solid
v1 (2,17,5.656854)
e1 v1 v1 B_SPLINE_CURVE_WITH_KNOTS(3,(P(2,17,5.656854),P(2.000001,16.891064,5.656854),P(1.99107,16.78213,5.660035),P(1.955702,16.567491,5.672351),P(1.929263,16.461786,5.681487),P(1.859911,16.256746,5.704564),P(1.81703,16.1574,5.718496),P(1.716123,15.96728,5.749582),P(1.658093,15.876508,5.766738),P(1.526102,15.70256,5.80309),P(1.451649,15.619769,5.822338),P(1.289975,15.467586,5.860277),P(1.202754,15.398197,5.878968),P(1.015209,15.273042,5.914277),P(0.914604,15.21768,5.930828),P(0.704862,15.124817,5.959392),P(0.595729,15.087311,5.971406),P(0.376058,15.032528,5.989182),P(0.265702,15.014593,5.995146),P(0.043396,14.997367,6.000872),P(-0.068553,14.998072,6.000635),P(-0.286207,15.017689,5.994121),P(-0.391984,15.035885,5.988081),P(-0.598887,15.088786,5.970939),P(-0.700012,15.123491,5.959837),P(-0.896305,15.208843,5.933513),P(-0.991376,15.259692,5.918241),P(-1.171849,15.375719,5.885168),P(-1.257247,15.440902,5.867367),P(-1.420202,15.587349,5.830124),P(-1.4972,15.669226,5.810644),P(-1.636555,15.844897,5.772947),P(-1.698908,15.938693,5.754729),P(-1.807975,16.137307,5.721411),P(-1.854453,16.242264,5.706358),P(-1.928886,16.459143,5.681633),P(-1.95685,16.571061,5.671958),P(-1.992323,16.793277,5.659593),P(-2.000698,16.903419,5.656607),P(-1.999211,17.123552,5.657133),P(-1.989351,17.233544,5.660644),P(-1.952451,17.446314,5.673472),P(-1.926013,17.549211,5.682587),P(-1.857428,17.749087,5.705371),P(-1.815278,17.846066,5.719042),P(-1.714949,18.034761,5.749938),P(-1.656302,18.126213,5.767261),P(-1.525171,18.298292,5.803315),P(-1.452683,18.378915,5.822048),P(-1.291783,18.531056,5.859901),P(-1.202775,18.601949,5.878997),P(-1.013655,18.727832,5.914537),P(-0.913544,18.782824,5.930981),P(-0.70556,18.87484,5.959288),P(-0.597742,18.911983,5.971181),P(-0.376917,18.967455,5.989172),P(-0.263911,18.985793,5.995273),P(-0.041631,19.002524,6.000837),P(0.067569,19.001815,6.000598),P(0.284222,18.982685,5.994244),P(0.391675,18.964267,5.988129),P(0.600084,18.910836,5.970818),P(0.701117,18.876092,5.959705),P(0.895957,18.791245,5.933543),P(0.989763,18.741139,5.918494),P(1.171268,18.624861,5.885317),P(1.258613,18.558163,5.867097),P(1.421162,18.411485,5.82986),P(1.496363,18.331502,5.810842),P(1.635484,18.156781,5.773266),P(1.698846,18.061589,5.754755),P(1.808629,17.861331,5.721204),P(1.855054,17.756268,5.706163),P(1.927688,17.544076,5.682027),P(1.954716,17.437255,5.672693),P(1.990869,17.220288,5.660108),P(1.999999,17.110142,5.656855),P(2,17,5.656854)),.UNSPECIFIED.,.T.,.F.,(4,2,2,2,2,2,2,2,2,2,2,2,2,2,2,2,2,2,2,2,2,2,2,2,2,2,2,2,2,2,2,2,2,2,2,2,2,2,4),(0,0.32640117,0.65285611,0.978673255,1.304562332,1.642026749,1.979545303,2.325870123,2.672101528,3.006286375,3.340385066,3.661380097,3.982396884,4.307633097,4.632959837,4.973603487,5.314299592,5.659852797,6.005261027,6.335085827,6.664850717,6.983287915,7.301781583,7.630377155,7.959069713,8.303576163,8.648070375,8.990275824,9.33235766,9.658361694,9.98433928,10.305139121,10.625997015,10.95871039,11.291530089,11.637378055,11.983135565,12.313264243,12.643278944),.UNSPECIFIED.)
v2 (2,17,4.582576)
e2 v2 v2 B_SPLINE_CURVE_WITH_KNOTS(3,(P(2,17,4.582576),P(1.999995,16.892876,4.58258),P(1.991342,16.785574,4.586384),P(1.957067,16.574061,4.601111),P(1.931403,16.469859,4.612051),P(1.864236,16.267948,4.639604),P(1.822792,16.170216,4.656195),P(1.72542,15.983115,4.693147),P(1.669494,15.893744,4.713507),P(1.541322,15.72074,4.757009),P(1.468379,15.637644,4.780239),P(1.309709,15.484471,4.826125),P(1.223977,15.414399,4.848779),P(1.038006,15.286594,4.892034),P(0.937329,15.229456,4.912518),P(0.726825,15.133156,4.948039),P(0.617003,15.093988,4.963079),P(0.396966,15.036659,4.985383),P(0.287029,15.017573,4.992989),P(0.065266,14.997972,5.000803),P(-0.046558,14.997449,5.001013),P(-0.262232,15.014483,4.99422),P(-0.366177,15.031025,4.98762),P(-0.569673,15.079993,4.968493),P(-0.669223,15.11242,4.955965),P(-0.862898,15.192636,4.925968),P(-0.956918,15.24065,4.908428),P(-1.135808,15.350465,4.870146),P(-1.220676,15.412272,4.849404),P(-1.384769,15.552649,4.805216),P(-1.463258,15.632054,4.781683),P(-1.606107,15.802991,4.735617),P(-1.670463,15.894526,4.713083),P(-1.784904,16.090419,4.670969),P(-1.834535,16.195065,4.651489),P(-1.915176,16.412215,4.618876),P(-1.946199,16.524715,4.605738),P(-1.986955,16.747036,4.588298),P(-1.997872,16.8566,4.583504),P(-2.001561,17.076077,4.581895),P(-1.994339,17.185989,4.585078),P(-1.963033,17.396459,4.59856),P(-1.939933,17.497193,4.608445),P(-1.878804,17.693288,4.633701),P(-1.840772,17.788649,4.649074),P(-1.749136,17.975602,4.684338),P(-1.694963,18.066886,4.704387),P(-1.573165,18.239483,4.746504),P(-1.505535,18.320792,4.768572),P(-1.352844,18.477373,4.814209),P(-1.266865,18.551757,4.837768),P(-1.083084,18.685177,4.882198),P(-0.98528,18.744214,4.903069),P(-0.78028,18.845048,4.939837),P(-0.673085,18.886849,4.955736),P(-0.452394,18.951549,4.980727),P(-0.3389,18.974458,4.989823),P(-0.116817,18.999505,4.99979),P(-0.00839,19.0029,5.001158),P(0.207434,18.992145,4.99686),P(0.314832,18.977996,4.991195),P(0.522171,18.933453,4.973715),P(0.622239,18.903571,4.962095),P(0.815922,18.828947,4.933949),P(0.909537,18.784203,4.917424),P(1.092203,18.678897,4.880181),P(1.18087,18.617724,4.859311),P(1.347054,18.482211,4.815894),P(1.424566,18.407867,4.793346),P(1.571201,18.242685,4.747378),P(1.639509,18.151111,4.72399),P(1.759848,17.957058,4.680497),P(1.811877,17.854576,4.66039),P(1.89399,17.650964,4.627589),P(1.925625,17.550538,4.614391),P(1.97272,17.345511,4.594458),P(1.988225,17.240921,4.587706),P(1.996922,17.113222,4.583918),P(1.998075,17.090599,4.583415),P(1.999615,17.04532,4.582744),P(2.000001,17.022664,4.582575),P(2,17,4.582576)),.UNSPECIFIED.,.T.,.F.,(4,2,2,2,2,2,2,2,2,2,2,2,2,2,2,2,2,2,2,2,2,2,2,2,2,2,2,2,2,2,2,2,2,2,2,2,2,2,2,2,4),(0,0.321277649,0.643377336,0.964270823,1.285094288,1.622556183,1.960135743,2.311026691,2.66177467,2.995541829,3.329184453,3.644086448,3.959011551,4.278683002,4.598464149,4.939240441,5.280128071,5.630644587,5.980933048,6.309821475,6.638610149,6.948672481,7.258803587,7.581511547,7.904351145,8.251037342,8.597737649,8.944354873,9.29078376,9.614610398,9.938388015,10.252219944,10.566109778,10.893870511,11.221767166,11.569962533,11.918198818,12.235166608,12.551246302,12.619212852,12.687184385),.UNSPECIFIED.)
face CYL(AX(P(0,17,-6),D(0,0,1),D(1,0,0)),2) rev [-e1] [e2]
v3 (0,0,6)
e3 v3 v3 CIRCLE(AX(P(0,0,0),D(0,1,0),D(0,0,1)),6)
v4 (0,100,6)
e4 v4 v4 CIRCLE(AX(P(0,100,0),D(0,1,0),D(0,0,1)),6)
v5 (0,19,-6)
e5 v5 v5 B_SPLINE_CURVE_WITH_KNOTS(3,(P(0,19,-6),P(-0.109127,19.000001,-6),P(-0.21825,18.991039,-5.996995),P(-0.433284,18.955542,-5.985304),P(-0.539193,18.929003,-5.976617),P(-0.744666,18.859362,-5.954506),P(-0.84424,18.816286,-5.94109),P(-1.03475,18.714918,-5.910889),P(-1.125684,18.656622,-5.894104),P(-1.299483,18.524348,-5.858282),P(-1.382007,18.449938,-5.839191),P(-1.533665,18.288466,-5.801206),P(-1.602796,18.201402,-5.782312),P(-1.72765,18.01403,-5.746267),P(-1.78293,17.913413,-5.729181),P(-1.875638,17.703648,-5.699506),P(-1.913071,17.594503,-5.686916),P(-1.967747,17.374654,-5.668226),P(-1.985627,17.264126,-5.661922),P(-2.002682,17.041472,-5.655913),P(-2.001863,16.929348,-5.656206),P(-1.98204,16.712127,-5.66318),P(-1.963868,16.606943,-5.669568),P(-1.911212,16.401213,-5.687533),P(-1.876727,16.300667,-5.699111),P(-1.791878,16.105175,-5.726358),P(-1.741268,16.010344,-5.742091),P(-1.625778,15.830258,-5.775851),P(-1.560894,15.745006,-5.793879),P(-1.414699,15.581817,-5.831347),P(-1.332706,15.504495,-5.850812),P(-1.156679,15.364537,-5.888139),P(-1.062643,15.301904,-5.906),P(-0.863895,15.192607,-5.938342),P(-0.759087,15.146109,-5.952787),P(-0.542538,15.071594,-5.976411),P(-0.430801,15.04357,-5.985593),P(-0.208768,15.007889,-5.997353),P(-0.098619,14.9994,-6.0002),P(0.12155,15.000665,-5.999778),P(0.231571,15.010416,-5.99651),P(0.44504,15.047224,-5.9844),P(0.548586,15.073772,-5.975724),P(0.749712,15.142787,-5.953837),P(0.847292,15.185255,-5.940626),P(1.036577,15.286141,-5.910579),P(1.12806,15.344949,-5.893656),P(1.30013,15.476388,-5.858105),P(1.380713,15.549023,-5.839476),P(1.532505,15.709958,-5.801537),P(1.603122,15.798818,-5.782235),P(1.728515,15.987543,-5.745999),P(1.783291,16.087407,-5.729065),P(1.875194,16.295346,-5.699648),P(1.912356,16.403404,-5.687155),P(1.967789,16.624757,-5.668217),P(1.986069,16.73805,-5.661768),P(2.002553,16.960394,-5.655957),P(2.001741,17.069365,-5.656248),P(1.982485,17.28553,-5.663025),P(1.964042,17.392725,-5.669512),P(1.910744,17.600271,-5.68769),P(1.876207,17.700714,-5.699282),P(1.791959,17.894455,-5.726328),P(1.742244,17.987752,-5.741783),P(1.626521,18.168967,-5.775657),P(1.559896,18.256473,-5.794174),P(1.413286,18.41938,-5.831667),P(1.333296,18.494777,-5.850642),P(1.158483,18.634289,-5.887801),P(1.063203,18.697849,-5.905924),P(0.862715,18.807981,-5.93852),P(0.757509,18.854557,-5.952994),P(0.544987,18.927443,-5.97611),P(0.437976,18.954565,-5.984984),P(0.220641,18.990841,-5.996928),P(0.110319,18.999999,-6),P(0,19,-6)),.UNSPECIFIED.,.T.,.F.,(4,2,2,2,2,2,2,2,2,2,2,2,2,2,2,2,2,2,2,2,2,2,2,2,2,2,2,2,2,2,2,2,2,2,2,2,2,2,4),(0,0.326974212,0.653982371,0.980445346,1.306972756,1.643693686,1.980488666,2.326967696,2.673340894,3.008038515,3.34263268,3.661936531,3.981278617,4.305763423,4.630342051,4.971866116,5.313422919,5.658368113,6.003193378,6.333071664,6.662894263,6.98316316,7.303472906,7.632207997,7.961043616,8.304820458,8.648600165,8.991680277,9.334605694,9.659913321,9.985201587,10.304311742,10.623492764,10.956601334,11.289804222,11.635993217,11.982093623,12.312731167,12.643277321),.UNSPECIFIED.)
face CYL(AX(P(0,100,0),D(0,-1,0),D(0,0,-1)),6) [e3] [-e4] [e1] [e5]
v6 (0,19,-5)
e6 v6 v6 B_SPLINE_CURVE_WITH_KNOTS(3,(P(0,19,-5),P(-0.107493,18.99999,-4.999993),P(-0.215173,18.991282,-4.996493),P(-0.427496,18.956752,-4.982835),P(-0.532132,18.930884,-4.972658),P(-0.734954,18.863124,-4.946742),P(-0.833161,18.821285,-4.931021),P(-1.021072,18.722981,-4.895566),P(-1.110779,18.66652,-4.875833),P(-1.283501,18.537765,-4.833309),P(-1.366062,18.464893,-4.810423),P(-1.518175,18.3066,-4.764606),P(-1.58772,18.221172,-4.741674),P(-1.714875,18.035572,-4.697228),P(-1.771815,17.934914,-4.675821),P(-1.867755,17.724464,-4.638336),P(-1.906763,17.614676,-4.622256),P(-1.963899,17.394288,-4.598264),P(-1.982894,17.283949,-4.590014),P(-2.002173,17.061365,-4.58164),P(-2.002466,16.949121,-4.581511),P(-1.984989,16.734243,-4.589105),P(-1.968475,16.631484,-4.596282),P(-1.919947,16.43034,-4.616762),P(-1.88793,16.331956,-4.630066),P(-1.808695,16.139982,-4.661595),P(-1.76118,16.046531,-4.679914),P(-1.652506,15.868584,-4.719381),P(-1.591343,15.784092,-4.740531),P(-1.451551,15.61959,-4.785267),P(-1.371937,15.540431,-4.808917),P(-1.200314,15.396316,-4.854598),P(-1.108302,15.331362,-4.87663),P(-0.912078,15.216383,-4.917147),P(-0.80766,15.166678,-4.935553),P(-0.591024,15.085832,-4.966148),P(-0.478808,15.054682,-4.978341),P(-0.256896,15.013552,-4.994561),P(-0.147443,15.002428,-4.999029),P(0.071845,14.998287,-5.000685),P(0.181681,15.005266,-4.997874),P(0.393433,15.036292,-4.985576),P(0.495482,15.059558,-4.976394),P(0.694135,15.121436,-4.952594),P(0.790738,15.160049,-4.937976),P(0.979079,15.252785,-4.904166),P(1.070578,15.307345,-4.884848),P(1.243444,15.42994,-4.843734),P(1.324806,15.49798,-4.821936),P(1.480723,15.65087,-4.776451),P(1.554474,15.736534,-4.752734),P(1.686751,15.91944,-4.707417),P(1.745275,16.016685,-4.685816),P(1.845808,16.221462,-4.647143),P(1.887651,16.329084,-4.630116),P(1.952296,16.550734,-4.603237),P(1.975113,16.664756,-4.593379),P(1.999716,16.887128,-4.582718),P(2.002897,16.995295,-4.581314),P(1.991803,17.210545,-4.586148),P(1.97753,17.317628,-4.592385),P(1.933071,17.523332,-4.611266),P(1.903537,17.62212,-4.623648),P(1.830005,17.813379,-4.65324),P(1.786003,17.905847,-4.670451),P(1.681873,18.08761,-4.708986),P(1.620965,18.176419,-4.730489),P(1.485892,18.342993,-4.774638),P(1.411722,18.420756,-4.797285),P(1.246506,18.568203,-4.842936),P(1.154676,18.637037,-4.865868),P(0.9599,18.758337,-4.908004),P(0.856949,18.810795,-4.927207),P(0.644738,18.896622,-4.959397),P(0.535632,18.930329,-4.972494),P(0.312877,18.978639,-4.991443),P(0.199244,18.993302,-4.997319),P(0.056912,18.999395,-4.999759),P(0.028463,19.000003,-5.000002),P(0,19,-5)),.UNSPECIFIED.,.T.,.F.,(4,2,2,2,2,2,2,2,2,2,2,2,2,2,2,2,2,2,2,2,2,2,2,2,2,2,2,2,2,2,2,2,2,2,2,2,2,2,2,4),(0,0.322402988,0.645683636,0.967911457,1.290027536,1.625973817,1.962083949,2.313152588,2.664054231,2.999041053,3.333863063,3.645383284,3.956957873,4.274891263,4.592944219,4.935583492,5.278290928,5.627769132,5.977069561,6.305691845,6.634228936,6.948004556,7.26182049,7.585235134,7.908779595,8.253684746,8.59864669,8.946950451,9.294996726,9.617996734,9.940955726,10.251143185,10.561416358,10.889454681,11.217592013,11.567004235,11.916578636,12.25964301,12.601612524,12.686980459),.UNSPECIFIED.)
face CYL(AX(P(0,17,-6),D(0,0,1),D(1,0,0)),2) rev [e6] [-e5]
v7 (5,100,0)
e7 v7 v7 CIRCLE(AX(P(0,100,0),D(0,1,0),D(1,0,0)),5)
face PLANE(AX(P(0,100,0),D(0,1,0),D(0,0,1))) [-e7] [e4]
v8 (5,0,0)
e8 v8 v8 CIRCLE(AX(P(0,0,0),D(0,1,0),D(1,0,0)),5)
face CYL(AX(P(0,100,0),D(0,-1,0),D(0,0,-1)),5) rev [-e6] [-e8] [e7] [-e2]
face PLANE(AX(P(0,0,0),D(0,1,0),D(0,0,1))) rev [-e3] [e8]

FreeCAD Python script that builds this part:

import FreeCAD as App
import Part
import Sketcher
from FreeCAD import Vector
Q = App.Units.Quantity

doc = App.newDocument("Part")
body = doc.addObject("PartDesign::Body", "Body")

# Sketch on XZ plane
sketch1 = body.newObject("Sketcher::SketchObject", "Sketch")
sketch1.AttachmentSupport = (doc.getObject("XZ_Plane"), [""])
sketch1.MapMode = "FlatFace"
sketch1.addGeometry(Part.Circle(Vector(0, 0, 0), Vector(0, 0, 1), 6), False)
sketch1.addGeometry(Part.Circle(Vector(0, 0, 0), Vector(0, 0, 1), 5), False)
sketch1.addConstraint(Sketcher.Constraint("Coincident", 0, 3, -1, 1))
sketch1.addConstraint(Sketcher.Constraint("Coincident", 1, 3, -1, 1))
sketch1.addConstraint(Sketcher.Constraint("Diameter", 0, Q("12 mm")))
sketch1.addConstraint(Sketcher.Constraint("Diameter", 1, Q("10 mm")))
pad1 = body.newObject("PartDesign::Pad", "Pad")
pad1.Profile = sketch1
pad1.Length = 100
pad1.Reversed = True

# Sketch on XY plane
sketch2 = body.newObject("Sketcher::SketchObject", "Sketch001")
sketch2.AttachmentSupport = (doc.getObject("XY_Plane"), [""])
sketch2.MapMode = "FlatFace"
sketch2.addGeometry(Part.Circle(Vector(0, 17, 0), Vector(0, 0, 1), 2), False)
sketch2.addConstraint(Sketcher.Constraint("PointOnObject", 0, 3, -2))
sketch2.addConstraint(Sketcher.Constraint("Diameter", 0, Q("4 mm")))
sketch2.addConstraint(Sketcher.Constraint("DistanceY", -1, 1, 0, 3, Q("17 mm")))
pocket1 = body.newObject("PartDesign::Pocket", "Pocket")
pocket1.Profile = sketch2
pocket1.Type = "ThroughAll"
pocket1.Midplane = True

doc.recompute()
